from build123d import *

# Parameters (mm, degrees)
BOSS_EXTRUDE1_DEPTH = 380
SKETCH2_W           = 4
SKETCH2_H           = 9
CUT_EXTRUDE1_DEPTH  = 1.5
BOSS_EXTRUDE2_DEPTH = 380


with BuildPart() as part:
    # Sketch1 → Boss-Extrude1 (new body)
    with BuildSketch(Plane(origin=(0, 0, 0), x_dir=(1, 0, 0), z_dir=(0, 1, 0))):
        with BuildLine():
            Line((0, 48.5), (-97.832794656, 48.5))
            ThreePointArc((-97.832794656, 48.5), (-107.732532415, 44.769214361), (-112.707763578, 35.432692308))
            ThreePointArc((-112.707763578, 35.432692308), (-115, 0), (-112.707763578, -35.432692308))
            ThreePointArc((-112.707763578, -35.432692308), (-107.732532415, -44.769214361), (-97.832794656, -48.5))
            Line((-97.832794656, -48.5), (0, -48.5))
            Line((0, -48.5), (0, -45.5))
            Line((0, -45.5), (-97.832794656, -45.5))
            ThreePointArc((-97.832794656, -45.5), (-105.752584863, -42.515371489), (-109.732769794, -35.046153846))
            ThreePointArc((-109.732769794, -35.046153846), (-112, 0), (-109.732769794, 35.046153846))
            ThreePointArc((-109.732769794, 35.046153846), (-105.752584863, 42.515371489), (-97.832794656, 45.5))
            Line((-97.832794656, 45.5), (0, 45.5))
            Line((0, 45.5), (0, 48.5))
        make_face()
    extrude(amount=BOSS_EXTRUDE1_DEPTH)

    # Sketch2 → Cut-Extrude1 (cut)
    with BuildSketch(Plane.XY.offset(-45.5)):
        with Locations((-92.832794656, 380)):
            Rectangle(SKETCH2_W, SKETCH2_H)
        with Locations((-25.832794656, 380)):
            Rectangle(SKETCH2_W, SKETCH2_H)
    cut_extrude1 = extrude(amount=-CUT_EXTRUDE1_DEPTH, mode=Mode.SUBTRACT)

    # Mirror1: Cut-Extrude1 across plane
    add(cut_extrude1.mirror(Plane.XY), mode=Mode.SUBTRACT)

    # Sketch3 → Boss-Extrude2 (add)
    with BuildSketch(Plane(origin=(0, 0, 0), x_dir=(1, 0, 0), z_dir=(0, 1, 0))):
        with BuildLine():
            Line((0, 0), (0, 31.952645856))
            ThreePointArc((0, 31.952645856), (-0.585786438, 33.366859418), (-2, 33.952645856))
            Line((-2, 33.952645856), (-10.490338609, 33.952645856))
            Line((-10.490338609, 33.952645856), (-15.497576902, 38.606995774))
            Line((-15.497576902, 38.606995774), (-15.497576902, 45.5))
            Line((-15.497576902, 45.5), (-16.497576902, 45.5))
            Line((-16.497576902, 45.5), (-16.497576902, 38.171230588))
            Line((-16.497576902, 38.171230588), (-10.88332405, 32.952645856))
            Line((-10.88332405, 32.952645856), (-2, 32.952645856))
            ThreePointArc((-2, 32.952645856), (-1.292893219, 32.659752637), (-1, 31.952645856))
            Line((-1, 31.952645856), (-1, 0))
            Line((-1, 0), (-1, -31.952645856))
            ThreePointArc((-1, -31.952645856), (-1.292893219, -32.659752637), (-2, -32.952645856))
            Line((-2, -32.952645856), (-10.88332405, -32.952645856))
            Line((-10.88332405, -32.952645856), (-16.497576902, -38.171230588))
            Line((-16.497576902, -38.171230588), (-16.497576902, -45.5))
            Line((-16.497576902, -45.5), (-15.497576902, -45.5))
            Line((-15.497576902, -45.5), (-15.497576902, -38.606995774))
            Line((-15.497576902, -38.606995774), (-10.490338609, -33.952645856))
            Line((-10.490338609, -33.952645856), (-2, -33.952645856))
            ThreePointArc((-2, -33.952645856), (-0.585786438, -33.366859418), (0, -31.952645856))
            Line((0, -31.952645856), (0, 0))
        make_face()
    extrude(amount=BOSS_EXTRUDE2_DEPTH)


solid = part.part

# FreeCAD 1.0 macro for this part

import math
import FreeCAD as App
import Part
import Sketcher

V = App.Vector
Q = App.Units.Quantity


def add_polygon(sketch, points):
    """Adds a closed chain of lines whose ends are joined by coincident constraints."""
    first, n = sketch.GeometryCount, len(points)
    for a, b in zip(points, points[1:] + points[:1]):
        sketch.addGeometry(Part.LineSegment(App.Vector(*a, 0), App.Vector(*b, 0)), False)
    for i in range(n):
        sketch.addConstraint(Sketcher.Constraint("Coincident", first + i, 2, first + (i + 1) % n, 1))

doc = App.newDocument("Part")
params = doc.addObject("Spreadsheet::Sheet", "Params")
for row, (alias, value) in enumerate([
    ("sketch1_radius", "15 mm"),
    ("sketch1_radius2", "275 mm"),
    ("sketch1_radius3", "12 mm"),
    ("pad1_length", "380 mm"),
    ("sketch2_width", "4 mm"),
    ("sketch2_height", "9 mm"),
    ("pocket1_length", "1.5 mm"),
    ("sketch3_radius", "2 mm"),
    ("sketch3_radius2", "1 mm"),
    ("sketch3_width", "1 mm"),
    ("pad2_length", "380 mm"),
], start=1):
    params.set(f"A{row}", alias)
    params.set(f"B{row}", "=" + value)
    params.setAlias(f"B{row}", alias)

body = doc.addObject("PartDesign::Body", "Body")

sketch1 = doc.addObject("Sketcher::SketchObject", "Sketch")
body.addObject(sketch1)
sketch1.AttachmentSupport = (doc.XZ_Plane, [""])
sketch1.MapMode = "FlatFace"
sketch1.addGeometry(Part.LineSegment(V(0, -48.5, 0), V(-97.832795, -48.5, 0)), False)
sketch1.addGeometry(Part.ArcOfCircle(Part.Circle(V(-97.832795, -33.5, 0), V(0, 0, 1), 15), math.radians(-172.597079), math.radians(-90)), False)
sketch1.addGeometry(Part.ArcOfCircle(Part.Circle(V(160, 0, 0), V(0, 0, 1), 275), math.radians(172.597079), math.radians(187.402921)), False)
sketch1.addGeometry(Part.ArcOfCircle(Part.Circle(V(-97.832795, 33.5, 0), V(0, 0, 1), 15), math.radians(90), math.radians(172.597079)), False)
sketch1.addGeometry(Part.LineSegment(V(-97.832795, 48.5, 0), V(0, 48.5, 0)), False)
sketch1.addGeometry(Part.LineSegment(V(0, 48.5, 0), V(0, 45.5, 0)), False)
sketch1.addGeometry(Part.LineSegment(V(0, 45.5, 0), V(-97.832795, 45.5, 0)), False)
sketch1.addGeometry(Part.ArcOfCircle(Part.Circle(V(-97.832795, 33.5, 0), V(0, 0, 1), 12), math.radians(90), math.radians(172.597079)), False)
sketch1.addGeometry(Part.ArcOfCircle(Part.Circle(V(160, 0, 0), V(0, 0, 1), 272), math.radians(172.597079), math.radians(187.402921)), False)
sketch1.addGeometry(Part.ArcOfCircle(Part.Circle(V(-97.832795, -33.5, 0), V(0, 0, 1), 12), math.radians(-172.597079), math.radians(-90)), False)
sketch1.addGeometry(Part.LineSegment(V(-97.832795, -45.5, 0), V(0, -45.5, 0)), False)
sketch1.addGeometry(Part.LineSegment(V(0, -45.5, 0), V(0, -48.5, 0)), False)
sketch1.addConstraint(Sketcher.Constraint("Tangent", 0, 2, 1, 2))
sketch1.addConstraint(Sketcher.Constraint("Tangent", 1, 1, 2, 2))
sketch1.addConstraint(Sketcher.Constraint("Tangent", 2, 1, 3, 2))
sketch1.addConstraint(Sketcher.Constraint("Tangent", 3, 1, 4, 1))
sketch1.addConstraint(Sketcher.Constraint("Coincident", 4, 2, 5, 1))
sketch1.addConstraint(Sketcher.Constraint("Coincident", 5, 2, 6, 1))
sketch1.addConstraint(Sketcher.Constraint("Tangent", 6, 2, 7, 1))
sketch1.addConstraint(Sketcher.Constraint("Tangent", 7, 2, 8, 1))
sketch1.addConstraint(Sketcher.Constraint("Tangent", 8, 2, 9, 1))
sketch1.addConstraint(Sketcher.Constraint("Tangent", 9, 2, 10, 1))
sketch1.addConstraint(Sketcher.Constraint("Coincident", 10, 2, 11, 1))
sketch1.addConstraint(Sketcher.Constraint("Coincident", 11, 2, 0, 1))
sketch1.addConstraint(Sketcher.Constraint("Horizontal", 0))
sketch1.addConstraint(Sketcher.Constraint("Horizontal", 4))
sketch1.addConstraint(Sketcher.Constraint("Vertical", 5))
sketch1.addConstraint(Sketcher.Constraint("Horizontal", 6))
sketch1.addConstraint(Sketcher.Constraint("Horizontal", 10))
sketch1.addConstraint(Sketcher.Constraint("Vertical", 11))
sketch1.addConstraint(Sketcher.Constraint("Coincident", 7, 3, 3, 3))
sketch1.addConstraint(Sketcher.Constraint("Coincident", 8, 3, 2, 3))
sketch1.addConstraint(Sketcher.Constraint("Coincident", 9, 3, 1, 3))
sketch1.addConstraint(Sketcher.Constraint("Equal", 1, 3))
sketch1.addConstraint(Sketcher.Constraint("Symmetric", 5, 2, 10, 2, -1, 1))
sketch1.addConstraint(Sketcher.Constraint("PointOnObject", 2, 3, -1))
sketch1.addConstraint(Sketcher.Constraint("PointOnObject", 4, 2, -2))
sketch1.addConstraint(Sketcher.Constraint("Radius", 1, Q("15 mm")))
sketch1.addConstraint(Sketcher.Constraint("Radius", 2, Q("275 mm")))
sketch1.addConstraint(Sketcher.Constraint("Radius", 7, Q("12 mm")))
sketch1.addConstraint(Sketcher.Constraint("DistanceX", -1, 1, 2, 3, Q("160 mm")))
sketch1.addConstraint(Sketcher.Constraint("DistanceY", 1, 3, 3, 3, Q("67 mm")))
sketch1.setExpression("Constraints[25]", "Params.sketch1_radius")
sketch1.setExpression("Constraints[26]", "Params.sketch1_radius2")
sketch1.setExpression("Constraints[27]", "Params.sketch1_radius3")
pad1 = doc.addObject("PartDesign::Pad", "Pad")
body.addObject(pad1)
pad1.Profile = sketch1
pad1.setExpression("Length", "Params.pad1_length")
pad1.Reversed = True

sketch2 = doc.addObject("Sketcher::SketchObject", "Sketch001")
body.addObject(sketch2)
sketch2.AttachmentSupport = (doc.XY_Plane, [""])
sketch2.MapMode = "FlatFace"
sketch2.AttachmentOffset = App.Placement(V(0, 0, -45.5), App.Rotation())
add_polygon(sketch2, [(-94.832795, 384.5), (-94.832795, 375.5), (-90.832795, 375.5), (-90.832795, 384.5)])
add_polygon(sketch2, [(-27.832795, 384.5), (-27.832795, 375.5), (-23.832795, 375.5), (-23.832795, 384.5)])
sketch2.addConstraint(Sketcher.Constraint("Vertical", 0))
sketch2.addConstraint(Sketcher.Constraint("Horizontal", 1))
sketch2.addConstraint(Sketcher.Constraint("Vertical", 2))
sketch2.addConstraint(Sketcher.Constraint("Horizontal", 3))
sketch2.addConstraint(Sketcher.Constraint("Vertical", 4))
sketch2.addConstraint(Sketcher.Constraint("Horizontal", 5))
sketch2.addConstraint(Sketcher.Constraint("Vertical", 6))
sketch2.addConstraint(Sketcher.Constraint("Horizontal", 7))
sketch2.addConstraint(Sketcher.Constraint("Horizontal", 1, 2, 4, 2))
sketch2.addConstraint(Sketcher.Constraint("Horizontal", 3, 2, 6, 2))
sketch2.addConstraint(Sketcher.Constraint("Equal", 3, 5))
sketch2.addConstraint(Sketcher.Constraint("DistanceX", 1, 1, 1, 2, Q("4 mm")))
sketch2.addConstraint(Sketcher.Constraint("DistanceY", 0, 2, 0, 1, Q("9 mm")))
sketch2.addConstraint(Sketcher.Constraint("DistanceX", 1, 2, 4, 2, Q("63 mm")))
sketch2.addConstraint(Sketcher.Constraint("DistanceY", -1, 1, 0, 2, Q("375.5 mm")))
sketch2.addConstraint(Sketcher.Constraint("DistanceX", 0, 2, -1, 1, Q("94.832795 mm")))
sketch2.setExpression("Constraints[19]", "Params.sketch2_width")
sketch2.setExpression("Constraints[20]", "Params.sketch2_height")
pocket1 = doc.addObject("PartDesign::Pocket", "Pocket")
body.addObject(pocket1)
pocket1.Profile = sketch2
pocket1.setExpression("Length", "Params.pocket1_length")
doc.recompute()

mirrored = doc.addObject("PartDesign::Mirrored", "Mirrored")
body.addObject(mirrored)
mirrored.Originals = [pocket1]
mirrored.MirrorPlane = (doc.XY_Plane, [""])
body.Tip = mirrored

sketch3 = doc.addObject("Sketcher::SketchObject", "Sketch002")
body.addObject(sketch3)
sketch3.AttachmentSupport = (doc.XZ_Plane, [""])
sketch3.MapMode = "FlatFace"
sketch3.addGeometry(Part.ArcOfCircle(Part.Circle(V(-2, -31.952646, 0), V(0, 0, 1), 2), math.radians(-90), math.radians(0)), False)
sketch3.addGeometry(Part.LineSegment(V(-2, -33.952646, 0), V(-10.490339, -33.952646, 0)), False)
sketch3.addGeometry(Part.LineSegment(V(-10.490339, -33.952646, 0), V(-15.497577, -38.606996, 0)), False)
sketch3.addGeometry(Part.LineSegment(V(-15.497577, -38.606996, 0), V(-15.497577, -45.5, 0)), False)
sketch3.addGeometry(Part.LineSegment(V(-15.497577, -45.5, 0), V(-16.497577, -45.5, 0)), False)
sketch3.addGeometry(Part.LineSegment(V(-16.497577, -45.5, 0), V(-16.497577, -38.171231, 0)), False)
sketch3.addGeometry(Part.LineSegment(V(-16.497577, -38.171231, 0), V(-10.883324, -32.952646, 0)), False)
sketch3.addGeometry(Part.LineSegment(V(-10.883324, -32.952646, 0), V(-2, -32.952646, 0)), False)
sketch3.addGeometry(Part.ArcOfCircle(Part.Circle(V(-2, -31.952646, 0), V(0, 0, 1), 1), math.radians(-90), math.radians(0)), False)
sketch3.addGeometry(Part.LineSegment(V(-1, -31.952646, 0), V(-1, 31.952646, 0)), False)
sketch3.addGeometry(Part.ArcOfCircle(Part.Circle(V(-2, 31.952646, 0), V(0, 0, 1), 1), math.radians(0), math.radians(90)), False)
sketch3.addGeometry(Part.LineSegment(V(-2, 32.952646, 0), V(-10.883324, 32.952646, 0)), False)
sketch3.addGeometry(Part.LineSegment(V(-10.883324, 32.952646, 0), V(-16.497577, 38.171231, 0)), False)
sketch3.addGeometry(Part.LineSegment(V(-16.497577, 38.171231, 0), V(-16.497577, 45.5, 0)), False)
sketch3.addGeometry(Part.LineSegment(V(-16.497577, 45.5, 0), V(-15.497577, 45.5, 0)), False)
sketch3.addGeometry(Part.LineSegment(V(-15.497577, 45.5, 0), V(-15.497577, 38.606996, 0)), False)
sketch3.addGeometry(Part.LineSegment(V(-15.497577, 38.606996, 0), V(-10.490339, 33.952646, 0)), False)
sketch3.addGeometry(Part.LineSegment(V(-10.490339, 33.952646, 0), V(-2, 33.952646, 0)), False)
sketch3.addGeometry(Part.ArcOfCircle(Part.Circle(V(-2, 31.952646, 0), V(0, 0, 1), 2), math.radians(0), math.radians(90)), False)
sketch3.addGeometry(Part.LineSegment(V(0, 31.952646, 0), V(0, -31.952646, 0)), False)
sketch3.addConstraint(Sketcher.Constraint("Tangent", 0, 1, 1, 1))
sketch3.addConstraint(Sketcher.Constraint("Coincident", 1, 2, 2, 1))
sketch3.addConstraint(Sketcher.Constraint("Coincident", 2, 2, 3, 1))
sketch3.addConstraint(Sketcher.Constraint("Coincident", 3, 2, 4, 1))
sketch3.addConstraint(Sketcher.Constraint("Coincident", 4, 2, 5, 1))
sketch3.addConstraint(Sketcher.Constraint("Coincident", 5, 2, 6, 1))
sketch3.addConstraint(Sketcher.Constraint("Coincident", 6, 2, 7, 1))
sketch3.addConstraint(Sketcher.Constraint("Tangent", 7, 2, 8, 1))
sketch3.addConstraint(Sketcher.Constraint("Tangent", 8, 2, 9, 1))
sketch3.addConstraint(Sketcher.Constraint("Tangent", 9, 2, 10, 1))
sketch3.addConstraint(Sketcher.Constraint("Tangent", 10, 2, 11, 1))
sketch3.addConstraint(Sketcher.Constraint("Coincident", 11, 2, 12, 1))
sketch3.addConstraint(Sketcher.Constraint("Coincident", 12, 2, 13, 1))
sketch3.addConstraint(Sketcher.Constraint("Coincident", 13, 2, 14, 1))
sketch3.addConstraint(Sketcher.Constraint("Coincident", 14, 2, 15, 1))
sketch3.addConstraint(Sketcher.Constraint("Coincident", 15, 2, 16, 1))
sketch3.addConstraint(Sketcher.Constraint("Coincident", 16, 2, 17, 1))
sketch3.addConstraint(Sketcher.Constraint("Tangent", 17, 2, 18, 2))
sketch3.addConstraint(Sketcher.Constraint("Tangent", 18, 1, 19, 1))
sketch3.addConstraint(Sketcher.Constraint("Tangent", 19, 2, 0, 2))
sketch3.addConstraint(Sketcher.Constraint("Horizontal", 1))
sketch3.addConstraint(Sketcher.Constraint("Vertical", 3))
sketch3.addConstraint(Sketcher.Constraint("Horizontal", 4))
sketch3.addConstraint(Sketcher.Constraint("Vertical", 5))
sketch3.addConstraint(Sketcher.Constraint("Horizontal", 7))
sketch3.addConstraint(Sketcher.Constraint("Vertical", 9))
sketch3.addConstraint(Sketcher.Constraint("Horizontal", 11))
sketch3.addConstraint(Sketcher.Constraint("Vertical", 13))
sketch3.addConstraint(Sketcher.Constraint("Horizontal", 14))
sketch3.addConstraint(Sketcher.Constraint("Vertical", 15))
sketch3.addConstraint(Sketcher.Constraint("Horizontal", 17))
sketch3.addConstraint(Sketcher.Constraint("Vertical", 19))
sketch3.addConstraint(Sketcher.Constraint("Coincident", 8, 3, 0, 3))
sketch3.addConstraint(Sketcher.Constraint("Coincident", 18, 3, 10, 3))
sketch3.addConstraint(Sketcher.Constraint("Equal", 8, 10))
sketch3.addConstraint(Sketcher.Constraint("Symmetric", 18, 1, 19, 2, -1, 1))
sketch3.addConstraint(Sketcher.Constraint("Symmetric", 5, 2, 12, 2, -1))
sketch3.addConstraint(Sketcher.Constraint("Symmetric", 3, 2, 14, 2, -1))
sketch3.addConstraint(Sketcher.Constraint("Parallel", 2, 6))
sketch3.addConstraint(Sketcher.Constraint("Parallel", 12, 16))
sketch3.addConstraint(Sketcher.Constraint("Vertical", 6, 2, 11, 2))
sketch3.addConstraint(Sketcher.Constraint("Vertical", 1, 2, 16, 2))
sketch3.addConstraint(Sketcher.Constraint("Radius", 0, Q("2 mm")))
sketch3.addConstraint(Sketcher.Constraint("Radius", 8, Q("1 mm")))
sketch3.addConstraint(Sketcher.Constraint("DistanceX", 4, 2, 4, 1, Q("1 mm")))
sketch3.addConstraint(Sketcher.Constraint("DistanceY", 3, 2, -1, 1, Q("45.5 mm")))
sketch3.addConstraint(Sketcher.Constraint("DistanceX", 1, 2, 1, 1, Q("8.490339 mm")))
sketch3.addConstraint(Sketcher.Constraint("DistanceY", 5, 1, 5, 2, Q("7.328769 mm")))
sketch3.addConstraint(Sketcher.Constraint("DistanceY", 9, 1, 9, 2, Q("63.905292 mm")))
sketch3.addConstraint(Sketcher.Constraint("Distance", 2, Q("6.83633 mm")))
sketch3.addConstraint(Sketcher.Constraint("Distance", 6, Q("7.665081 mm")))
sketch3.setExpression("Constraints[42]", "Params.sketch3_radius")
sketch3.setExpression("Constraints[43]", "Params.sketch3_radius2")
sketch3.setExpression("Constraints[44]", "Params.sketch3_width")
pad2 = doc.addObject("PartDesign::Pad", "Pad001")
body.addObject(pad2)
pad2.Profile = sketch3
pad2.setExpression("Length", "Params.pad2_length")
pad2.Reversed = True

doc.recompute()
